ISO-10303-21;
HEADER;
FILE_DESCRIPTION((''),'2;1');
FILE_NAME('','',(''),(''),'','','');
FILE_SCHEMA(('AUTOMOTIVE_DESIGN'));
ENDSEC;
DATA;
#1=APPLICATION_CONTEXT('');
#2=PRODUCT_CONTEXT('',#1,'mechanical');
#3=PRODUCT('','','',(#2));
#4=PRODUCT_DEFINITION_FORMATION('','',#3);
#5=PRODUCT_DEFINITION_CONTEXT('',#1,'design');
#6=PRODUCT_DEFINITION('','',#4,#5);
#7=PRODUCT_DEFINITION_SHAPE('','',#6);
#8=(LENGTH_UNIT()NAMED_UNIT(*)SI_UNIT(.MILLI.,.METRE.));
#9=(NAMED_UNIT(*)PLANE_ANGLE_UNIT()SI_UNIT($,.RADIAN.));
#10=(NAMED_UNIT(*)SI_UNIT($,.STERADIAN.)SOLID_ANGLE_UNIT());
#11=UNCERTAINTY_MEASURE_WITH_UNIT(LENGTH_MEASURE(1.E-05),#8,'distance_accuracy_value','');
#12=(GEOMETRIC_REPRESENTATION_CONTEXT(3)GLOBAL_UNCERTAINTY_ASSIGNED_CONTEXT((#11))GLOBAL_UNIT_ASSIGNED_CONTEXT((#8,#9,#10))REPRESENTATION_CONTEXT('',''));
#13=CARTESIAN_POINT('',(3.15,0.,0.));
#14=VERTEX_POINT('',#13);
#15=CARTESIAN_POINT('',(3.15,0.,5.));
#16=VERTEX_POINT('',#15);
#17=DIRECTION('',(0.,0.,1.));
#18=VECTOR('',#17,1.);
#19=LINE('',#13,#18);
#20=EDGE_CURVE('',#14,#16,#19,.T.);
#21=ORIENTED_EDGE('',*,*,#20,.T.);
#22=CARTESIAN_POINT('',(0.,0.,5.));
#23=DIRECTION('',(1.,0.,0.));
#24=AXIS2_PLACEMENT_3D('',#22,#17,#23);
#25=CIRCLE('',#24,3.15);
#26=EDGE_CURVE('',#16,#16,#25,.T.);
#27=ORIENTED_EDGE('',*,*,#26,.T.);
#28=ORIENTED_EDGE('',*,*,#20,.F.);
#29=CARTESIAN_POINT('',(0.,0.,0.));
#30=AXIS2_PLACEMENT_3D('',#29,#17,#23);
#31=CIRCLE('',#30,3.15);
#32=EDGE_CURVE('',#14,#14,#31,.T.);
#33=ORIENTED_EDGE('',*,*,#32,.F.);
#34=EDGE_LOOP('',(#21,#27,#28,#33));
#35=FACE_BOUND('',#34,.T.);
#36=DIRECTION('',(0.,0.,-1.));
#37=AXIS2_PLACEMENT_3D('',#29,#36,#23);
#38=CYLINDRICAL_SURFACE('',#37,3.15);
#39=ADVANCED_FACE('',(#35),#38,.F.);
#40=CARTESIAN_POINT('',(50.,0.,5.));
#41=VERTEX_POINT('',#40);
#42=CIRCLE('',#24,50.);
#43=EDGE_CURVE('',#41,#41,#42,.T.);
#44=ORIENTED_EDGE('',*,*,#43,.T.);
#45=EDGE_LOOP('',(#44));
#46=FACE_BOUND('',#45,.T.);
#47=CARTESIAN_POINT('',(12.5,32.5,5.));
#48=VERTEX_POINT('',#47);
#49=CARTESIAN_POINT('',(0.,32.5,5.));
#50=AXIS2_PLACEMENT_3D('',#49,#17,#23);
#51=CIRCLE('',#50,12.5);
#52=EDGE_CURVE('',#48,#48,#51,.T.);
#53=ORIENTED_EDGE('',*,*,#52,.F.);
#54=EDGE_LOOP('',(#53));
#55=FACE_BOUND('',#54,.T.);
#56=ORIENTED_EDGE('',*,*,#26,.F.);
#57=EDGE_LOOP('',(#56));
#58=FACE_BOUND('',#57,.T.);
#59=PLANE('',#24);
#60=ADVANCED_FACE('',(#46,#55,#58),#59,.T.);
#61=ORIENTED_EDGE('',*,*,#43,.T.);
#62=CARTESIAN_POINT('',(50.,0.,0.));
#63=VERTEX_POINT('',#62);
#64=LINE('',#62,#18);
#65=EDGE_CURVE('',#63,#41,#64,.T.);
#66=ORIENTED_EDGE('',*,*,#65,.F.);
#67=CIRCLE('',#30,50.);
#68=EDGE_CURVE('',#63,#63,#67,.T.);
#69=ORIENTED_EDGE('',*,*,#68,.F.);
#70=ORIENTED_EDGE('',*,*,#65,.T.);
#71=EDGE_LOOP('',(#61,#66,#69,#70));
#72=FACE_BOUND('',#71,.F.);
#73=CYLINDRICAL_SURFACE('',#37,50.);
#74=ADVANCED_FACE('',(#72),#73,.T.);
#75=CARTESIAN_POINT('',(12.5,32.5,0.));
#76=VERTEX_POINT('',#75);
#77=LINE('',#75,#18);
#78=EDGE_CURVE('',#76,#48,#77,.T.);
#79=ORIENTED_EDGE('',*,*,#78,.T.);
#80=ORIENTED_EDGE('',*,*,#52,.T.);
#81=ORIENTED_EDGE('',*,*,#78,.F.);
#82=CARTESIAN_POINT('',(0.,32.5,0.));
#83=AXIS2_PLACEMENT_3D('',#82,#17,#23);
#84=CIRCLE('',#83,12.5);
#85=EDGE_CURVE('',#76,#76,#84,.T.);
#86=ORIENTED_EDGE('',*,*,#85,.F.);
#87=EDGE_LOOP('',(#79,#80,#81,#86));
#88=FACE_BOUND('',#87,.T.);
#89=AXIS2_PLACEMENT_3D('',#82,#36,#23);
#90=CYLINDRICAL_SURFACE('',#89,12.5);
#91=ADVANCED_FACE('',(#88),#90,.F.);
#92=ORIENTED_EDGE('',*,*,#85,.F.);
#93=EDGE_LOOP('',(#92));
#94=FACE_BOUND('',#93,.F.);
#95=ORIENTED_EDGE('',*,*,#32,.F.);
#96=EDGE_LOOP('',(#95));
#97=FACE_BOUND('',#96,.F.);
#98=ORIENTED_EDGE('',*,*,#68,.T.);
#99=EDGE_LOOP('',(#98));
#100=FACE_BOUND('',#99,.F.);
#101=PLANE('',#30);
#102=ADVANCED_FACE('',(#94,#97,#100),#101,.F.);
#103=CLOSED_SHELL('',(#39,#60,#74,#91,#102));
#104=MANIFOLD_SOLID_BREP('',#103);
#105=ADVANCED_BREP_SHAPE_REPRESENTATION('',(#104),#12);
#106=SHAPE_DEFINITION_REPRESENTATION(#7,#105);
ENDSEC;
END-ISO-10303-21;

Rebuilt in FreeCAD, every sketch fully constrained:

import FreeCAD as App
import Part
import Sketcher
from FreeCAD import Vector
Q = App.Units.Quantity

doc = App.newDocument("Part")
body = doc.addObject("PartDesign::Body", "Body")

# Sketch on XY plane
sketch1 = doc.addObject("Sketcher::SketchObject", "Sketch")
body.addObject(sketch1)
sketch1.AttachmentSupport = (doc.XY_Plane, [""])
sketch1.MapMode = "FlatFace"
sketch1.addGeometry(Part.Circle(Vector(0, 0, 0), Vector(0, 0, 1), 50), False)
sketch1.addGeometry(Part.Circle(Vector(0, 0, 0), Vector(0, 0, 1), 3.15), False)
sketch1.addGeometry(Part.Circle(Vector(0, 32.5, 0), Vector(0, 0, 1), 12.5), False)
sketch1.addConstraint(Sketcher.Constraint("Coincident", 0, 3, -1, 1))
sketch1.addConstraint(Sketcher.Constraint("Coincident", 1, 3, -1, 1))
sketch1.addConstraint(Sketcher.Constraint("PointOnObject", 2, 3, -2))
sketch1.addConstraint(Sketcher.Constraint("Diameter", 0, Q("100 mm")))
sketch1.addConstraint(Sketcher.Constraint("Diameter", 2, Q("25 mm")))
sketch1.addConstraint(Sketcher.Constraint("Diameter", 1, Q("6.3 mm")))
sketch1.addConstraint(Sketcher.Constraint("DistanceY", -1, 1, 2, 3, Q("32.5 mm")))
pad1 = doc.addObject("PartDesign::Pad", "Pad")
body.addObject(pad1)
pad1.Profile = sketch1
pad1.Length = 5

doc.recompute()
